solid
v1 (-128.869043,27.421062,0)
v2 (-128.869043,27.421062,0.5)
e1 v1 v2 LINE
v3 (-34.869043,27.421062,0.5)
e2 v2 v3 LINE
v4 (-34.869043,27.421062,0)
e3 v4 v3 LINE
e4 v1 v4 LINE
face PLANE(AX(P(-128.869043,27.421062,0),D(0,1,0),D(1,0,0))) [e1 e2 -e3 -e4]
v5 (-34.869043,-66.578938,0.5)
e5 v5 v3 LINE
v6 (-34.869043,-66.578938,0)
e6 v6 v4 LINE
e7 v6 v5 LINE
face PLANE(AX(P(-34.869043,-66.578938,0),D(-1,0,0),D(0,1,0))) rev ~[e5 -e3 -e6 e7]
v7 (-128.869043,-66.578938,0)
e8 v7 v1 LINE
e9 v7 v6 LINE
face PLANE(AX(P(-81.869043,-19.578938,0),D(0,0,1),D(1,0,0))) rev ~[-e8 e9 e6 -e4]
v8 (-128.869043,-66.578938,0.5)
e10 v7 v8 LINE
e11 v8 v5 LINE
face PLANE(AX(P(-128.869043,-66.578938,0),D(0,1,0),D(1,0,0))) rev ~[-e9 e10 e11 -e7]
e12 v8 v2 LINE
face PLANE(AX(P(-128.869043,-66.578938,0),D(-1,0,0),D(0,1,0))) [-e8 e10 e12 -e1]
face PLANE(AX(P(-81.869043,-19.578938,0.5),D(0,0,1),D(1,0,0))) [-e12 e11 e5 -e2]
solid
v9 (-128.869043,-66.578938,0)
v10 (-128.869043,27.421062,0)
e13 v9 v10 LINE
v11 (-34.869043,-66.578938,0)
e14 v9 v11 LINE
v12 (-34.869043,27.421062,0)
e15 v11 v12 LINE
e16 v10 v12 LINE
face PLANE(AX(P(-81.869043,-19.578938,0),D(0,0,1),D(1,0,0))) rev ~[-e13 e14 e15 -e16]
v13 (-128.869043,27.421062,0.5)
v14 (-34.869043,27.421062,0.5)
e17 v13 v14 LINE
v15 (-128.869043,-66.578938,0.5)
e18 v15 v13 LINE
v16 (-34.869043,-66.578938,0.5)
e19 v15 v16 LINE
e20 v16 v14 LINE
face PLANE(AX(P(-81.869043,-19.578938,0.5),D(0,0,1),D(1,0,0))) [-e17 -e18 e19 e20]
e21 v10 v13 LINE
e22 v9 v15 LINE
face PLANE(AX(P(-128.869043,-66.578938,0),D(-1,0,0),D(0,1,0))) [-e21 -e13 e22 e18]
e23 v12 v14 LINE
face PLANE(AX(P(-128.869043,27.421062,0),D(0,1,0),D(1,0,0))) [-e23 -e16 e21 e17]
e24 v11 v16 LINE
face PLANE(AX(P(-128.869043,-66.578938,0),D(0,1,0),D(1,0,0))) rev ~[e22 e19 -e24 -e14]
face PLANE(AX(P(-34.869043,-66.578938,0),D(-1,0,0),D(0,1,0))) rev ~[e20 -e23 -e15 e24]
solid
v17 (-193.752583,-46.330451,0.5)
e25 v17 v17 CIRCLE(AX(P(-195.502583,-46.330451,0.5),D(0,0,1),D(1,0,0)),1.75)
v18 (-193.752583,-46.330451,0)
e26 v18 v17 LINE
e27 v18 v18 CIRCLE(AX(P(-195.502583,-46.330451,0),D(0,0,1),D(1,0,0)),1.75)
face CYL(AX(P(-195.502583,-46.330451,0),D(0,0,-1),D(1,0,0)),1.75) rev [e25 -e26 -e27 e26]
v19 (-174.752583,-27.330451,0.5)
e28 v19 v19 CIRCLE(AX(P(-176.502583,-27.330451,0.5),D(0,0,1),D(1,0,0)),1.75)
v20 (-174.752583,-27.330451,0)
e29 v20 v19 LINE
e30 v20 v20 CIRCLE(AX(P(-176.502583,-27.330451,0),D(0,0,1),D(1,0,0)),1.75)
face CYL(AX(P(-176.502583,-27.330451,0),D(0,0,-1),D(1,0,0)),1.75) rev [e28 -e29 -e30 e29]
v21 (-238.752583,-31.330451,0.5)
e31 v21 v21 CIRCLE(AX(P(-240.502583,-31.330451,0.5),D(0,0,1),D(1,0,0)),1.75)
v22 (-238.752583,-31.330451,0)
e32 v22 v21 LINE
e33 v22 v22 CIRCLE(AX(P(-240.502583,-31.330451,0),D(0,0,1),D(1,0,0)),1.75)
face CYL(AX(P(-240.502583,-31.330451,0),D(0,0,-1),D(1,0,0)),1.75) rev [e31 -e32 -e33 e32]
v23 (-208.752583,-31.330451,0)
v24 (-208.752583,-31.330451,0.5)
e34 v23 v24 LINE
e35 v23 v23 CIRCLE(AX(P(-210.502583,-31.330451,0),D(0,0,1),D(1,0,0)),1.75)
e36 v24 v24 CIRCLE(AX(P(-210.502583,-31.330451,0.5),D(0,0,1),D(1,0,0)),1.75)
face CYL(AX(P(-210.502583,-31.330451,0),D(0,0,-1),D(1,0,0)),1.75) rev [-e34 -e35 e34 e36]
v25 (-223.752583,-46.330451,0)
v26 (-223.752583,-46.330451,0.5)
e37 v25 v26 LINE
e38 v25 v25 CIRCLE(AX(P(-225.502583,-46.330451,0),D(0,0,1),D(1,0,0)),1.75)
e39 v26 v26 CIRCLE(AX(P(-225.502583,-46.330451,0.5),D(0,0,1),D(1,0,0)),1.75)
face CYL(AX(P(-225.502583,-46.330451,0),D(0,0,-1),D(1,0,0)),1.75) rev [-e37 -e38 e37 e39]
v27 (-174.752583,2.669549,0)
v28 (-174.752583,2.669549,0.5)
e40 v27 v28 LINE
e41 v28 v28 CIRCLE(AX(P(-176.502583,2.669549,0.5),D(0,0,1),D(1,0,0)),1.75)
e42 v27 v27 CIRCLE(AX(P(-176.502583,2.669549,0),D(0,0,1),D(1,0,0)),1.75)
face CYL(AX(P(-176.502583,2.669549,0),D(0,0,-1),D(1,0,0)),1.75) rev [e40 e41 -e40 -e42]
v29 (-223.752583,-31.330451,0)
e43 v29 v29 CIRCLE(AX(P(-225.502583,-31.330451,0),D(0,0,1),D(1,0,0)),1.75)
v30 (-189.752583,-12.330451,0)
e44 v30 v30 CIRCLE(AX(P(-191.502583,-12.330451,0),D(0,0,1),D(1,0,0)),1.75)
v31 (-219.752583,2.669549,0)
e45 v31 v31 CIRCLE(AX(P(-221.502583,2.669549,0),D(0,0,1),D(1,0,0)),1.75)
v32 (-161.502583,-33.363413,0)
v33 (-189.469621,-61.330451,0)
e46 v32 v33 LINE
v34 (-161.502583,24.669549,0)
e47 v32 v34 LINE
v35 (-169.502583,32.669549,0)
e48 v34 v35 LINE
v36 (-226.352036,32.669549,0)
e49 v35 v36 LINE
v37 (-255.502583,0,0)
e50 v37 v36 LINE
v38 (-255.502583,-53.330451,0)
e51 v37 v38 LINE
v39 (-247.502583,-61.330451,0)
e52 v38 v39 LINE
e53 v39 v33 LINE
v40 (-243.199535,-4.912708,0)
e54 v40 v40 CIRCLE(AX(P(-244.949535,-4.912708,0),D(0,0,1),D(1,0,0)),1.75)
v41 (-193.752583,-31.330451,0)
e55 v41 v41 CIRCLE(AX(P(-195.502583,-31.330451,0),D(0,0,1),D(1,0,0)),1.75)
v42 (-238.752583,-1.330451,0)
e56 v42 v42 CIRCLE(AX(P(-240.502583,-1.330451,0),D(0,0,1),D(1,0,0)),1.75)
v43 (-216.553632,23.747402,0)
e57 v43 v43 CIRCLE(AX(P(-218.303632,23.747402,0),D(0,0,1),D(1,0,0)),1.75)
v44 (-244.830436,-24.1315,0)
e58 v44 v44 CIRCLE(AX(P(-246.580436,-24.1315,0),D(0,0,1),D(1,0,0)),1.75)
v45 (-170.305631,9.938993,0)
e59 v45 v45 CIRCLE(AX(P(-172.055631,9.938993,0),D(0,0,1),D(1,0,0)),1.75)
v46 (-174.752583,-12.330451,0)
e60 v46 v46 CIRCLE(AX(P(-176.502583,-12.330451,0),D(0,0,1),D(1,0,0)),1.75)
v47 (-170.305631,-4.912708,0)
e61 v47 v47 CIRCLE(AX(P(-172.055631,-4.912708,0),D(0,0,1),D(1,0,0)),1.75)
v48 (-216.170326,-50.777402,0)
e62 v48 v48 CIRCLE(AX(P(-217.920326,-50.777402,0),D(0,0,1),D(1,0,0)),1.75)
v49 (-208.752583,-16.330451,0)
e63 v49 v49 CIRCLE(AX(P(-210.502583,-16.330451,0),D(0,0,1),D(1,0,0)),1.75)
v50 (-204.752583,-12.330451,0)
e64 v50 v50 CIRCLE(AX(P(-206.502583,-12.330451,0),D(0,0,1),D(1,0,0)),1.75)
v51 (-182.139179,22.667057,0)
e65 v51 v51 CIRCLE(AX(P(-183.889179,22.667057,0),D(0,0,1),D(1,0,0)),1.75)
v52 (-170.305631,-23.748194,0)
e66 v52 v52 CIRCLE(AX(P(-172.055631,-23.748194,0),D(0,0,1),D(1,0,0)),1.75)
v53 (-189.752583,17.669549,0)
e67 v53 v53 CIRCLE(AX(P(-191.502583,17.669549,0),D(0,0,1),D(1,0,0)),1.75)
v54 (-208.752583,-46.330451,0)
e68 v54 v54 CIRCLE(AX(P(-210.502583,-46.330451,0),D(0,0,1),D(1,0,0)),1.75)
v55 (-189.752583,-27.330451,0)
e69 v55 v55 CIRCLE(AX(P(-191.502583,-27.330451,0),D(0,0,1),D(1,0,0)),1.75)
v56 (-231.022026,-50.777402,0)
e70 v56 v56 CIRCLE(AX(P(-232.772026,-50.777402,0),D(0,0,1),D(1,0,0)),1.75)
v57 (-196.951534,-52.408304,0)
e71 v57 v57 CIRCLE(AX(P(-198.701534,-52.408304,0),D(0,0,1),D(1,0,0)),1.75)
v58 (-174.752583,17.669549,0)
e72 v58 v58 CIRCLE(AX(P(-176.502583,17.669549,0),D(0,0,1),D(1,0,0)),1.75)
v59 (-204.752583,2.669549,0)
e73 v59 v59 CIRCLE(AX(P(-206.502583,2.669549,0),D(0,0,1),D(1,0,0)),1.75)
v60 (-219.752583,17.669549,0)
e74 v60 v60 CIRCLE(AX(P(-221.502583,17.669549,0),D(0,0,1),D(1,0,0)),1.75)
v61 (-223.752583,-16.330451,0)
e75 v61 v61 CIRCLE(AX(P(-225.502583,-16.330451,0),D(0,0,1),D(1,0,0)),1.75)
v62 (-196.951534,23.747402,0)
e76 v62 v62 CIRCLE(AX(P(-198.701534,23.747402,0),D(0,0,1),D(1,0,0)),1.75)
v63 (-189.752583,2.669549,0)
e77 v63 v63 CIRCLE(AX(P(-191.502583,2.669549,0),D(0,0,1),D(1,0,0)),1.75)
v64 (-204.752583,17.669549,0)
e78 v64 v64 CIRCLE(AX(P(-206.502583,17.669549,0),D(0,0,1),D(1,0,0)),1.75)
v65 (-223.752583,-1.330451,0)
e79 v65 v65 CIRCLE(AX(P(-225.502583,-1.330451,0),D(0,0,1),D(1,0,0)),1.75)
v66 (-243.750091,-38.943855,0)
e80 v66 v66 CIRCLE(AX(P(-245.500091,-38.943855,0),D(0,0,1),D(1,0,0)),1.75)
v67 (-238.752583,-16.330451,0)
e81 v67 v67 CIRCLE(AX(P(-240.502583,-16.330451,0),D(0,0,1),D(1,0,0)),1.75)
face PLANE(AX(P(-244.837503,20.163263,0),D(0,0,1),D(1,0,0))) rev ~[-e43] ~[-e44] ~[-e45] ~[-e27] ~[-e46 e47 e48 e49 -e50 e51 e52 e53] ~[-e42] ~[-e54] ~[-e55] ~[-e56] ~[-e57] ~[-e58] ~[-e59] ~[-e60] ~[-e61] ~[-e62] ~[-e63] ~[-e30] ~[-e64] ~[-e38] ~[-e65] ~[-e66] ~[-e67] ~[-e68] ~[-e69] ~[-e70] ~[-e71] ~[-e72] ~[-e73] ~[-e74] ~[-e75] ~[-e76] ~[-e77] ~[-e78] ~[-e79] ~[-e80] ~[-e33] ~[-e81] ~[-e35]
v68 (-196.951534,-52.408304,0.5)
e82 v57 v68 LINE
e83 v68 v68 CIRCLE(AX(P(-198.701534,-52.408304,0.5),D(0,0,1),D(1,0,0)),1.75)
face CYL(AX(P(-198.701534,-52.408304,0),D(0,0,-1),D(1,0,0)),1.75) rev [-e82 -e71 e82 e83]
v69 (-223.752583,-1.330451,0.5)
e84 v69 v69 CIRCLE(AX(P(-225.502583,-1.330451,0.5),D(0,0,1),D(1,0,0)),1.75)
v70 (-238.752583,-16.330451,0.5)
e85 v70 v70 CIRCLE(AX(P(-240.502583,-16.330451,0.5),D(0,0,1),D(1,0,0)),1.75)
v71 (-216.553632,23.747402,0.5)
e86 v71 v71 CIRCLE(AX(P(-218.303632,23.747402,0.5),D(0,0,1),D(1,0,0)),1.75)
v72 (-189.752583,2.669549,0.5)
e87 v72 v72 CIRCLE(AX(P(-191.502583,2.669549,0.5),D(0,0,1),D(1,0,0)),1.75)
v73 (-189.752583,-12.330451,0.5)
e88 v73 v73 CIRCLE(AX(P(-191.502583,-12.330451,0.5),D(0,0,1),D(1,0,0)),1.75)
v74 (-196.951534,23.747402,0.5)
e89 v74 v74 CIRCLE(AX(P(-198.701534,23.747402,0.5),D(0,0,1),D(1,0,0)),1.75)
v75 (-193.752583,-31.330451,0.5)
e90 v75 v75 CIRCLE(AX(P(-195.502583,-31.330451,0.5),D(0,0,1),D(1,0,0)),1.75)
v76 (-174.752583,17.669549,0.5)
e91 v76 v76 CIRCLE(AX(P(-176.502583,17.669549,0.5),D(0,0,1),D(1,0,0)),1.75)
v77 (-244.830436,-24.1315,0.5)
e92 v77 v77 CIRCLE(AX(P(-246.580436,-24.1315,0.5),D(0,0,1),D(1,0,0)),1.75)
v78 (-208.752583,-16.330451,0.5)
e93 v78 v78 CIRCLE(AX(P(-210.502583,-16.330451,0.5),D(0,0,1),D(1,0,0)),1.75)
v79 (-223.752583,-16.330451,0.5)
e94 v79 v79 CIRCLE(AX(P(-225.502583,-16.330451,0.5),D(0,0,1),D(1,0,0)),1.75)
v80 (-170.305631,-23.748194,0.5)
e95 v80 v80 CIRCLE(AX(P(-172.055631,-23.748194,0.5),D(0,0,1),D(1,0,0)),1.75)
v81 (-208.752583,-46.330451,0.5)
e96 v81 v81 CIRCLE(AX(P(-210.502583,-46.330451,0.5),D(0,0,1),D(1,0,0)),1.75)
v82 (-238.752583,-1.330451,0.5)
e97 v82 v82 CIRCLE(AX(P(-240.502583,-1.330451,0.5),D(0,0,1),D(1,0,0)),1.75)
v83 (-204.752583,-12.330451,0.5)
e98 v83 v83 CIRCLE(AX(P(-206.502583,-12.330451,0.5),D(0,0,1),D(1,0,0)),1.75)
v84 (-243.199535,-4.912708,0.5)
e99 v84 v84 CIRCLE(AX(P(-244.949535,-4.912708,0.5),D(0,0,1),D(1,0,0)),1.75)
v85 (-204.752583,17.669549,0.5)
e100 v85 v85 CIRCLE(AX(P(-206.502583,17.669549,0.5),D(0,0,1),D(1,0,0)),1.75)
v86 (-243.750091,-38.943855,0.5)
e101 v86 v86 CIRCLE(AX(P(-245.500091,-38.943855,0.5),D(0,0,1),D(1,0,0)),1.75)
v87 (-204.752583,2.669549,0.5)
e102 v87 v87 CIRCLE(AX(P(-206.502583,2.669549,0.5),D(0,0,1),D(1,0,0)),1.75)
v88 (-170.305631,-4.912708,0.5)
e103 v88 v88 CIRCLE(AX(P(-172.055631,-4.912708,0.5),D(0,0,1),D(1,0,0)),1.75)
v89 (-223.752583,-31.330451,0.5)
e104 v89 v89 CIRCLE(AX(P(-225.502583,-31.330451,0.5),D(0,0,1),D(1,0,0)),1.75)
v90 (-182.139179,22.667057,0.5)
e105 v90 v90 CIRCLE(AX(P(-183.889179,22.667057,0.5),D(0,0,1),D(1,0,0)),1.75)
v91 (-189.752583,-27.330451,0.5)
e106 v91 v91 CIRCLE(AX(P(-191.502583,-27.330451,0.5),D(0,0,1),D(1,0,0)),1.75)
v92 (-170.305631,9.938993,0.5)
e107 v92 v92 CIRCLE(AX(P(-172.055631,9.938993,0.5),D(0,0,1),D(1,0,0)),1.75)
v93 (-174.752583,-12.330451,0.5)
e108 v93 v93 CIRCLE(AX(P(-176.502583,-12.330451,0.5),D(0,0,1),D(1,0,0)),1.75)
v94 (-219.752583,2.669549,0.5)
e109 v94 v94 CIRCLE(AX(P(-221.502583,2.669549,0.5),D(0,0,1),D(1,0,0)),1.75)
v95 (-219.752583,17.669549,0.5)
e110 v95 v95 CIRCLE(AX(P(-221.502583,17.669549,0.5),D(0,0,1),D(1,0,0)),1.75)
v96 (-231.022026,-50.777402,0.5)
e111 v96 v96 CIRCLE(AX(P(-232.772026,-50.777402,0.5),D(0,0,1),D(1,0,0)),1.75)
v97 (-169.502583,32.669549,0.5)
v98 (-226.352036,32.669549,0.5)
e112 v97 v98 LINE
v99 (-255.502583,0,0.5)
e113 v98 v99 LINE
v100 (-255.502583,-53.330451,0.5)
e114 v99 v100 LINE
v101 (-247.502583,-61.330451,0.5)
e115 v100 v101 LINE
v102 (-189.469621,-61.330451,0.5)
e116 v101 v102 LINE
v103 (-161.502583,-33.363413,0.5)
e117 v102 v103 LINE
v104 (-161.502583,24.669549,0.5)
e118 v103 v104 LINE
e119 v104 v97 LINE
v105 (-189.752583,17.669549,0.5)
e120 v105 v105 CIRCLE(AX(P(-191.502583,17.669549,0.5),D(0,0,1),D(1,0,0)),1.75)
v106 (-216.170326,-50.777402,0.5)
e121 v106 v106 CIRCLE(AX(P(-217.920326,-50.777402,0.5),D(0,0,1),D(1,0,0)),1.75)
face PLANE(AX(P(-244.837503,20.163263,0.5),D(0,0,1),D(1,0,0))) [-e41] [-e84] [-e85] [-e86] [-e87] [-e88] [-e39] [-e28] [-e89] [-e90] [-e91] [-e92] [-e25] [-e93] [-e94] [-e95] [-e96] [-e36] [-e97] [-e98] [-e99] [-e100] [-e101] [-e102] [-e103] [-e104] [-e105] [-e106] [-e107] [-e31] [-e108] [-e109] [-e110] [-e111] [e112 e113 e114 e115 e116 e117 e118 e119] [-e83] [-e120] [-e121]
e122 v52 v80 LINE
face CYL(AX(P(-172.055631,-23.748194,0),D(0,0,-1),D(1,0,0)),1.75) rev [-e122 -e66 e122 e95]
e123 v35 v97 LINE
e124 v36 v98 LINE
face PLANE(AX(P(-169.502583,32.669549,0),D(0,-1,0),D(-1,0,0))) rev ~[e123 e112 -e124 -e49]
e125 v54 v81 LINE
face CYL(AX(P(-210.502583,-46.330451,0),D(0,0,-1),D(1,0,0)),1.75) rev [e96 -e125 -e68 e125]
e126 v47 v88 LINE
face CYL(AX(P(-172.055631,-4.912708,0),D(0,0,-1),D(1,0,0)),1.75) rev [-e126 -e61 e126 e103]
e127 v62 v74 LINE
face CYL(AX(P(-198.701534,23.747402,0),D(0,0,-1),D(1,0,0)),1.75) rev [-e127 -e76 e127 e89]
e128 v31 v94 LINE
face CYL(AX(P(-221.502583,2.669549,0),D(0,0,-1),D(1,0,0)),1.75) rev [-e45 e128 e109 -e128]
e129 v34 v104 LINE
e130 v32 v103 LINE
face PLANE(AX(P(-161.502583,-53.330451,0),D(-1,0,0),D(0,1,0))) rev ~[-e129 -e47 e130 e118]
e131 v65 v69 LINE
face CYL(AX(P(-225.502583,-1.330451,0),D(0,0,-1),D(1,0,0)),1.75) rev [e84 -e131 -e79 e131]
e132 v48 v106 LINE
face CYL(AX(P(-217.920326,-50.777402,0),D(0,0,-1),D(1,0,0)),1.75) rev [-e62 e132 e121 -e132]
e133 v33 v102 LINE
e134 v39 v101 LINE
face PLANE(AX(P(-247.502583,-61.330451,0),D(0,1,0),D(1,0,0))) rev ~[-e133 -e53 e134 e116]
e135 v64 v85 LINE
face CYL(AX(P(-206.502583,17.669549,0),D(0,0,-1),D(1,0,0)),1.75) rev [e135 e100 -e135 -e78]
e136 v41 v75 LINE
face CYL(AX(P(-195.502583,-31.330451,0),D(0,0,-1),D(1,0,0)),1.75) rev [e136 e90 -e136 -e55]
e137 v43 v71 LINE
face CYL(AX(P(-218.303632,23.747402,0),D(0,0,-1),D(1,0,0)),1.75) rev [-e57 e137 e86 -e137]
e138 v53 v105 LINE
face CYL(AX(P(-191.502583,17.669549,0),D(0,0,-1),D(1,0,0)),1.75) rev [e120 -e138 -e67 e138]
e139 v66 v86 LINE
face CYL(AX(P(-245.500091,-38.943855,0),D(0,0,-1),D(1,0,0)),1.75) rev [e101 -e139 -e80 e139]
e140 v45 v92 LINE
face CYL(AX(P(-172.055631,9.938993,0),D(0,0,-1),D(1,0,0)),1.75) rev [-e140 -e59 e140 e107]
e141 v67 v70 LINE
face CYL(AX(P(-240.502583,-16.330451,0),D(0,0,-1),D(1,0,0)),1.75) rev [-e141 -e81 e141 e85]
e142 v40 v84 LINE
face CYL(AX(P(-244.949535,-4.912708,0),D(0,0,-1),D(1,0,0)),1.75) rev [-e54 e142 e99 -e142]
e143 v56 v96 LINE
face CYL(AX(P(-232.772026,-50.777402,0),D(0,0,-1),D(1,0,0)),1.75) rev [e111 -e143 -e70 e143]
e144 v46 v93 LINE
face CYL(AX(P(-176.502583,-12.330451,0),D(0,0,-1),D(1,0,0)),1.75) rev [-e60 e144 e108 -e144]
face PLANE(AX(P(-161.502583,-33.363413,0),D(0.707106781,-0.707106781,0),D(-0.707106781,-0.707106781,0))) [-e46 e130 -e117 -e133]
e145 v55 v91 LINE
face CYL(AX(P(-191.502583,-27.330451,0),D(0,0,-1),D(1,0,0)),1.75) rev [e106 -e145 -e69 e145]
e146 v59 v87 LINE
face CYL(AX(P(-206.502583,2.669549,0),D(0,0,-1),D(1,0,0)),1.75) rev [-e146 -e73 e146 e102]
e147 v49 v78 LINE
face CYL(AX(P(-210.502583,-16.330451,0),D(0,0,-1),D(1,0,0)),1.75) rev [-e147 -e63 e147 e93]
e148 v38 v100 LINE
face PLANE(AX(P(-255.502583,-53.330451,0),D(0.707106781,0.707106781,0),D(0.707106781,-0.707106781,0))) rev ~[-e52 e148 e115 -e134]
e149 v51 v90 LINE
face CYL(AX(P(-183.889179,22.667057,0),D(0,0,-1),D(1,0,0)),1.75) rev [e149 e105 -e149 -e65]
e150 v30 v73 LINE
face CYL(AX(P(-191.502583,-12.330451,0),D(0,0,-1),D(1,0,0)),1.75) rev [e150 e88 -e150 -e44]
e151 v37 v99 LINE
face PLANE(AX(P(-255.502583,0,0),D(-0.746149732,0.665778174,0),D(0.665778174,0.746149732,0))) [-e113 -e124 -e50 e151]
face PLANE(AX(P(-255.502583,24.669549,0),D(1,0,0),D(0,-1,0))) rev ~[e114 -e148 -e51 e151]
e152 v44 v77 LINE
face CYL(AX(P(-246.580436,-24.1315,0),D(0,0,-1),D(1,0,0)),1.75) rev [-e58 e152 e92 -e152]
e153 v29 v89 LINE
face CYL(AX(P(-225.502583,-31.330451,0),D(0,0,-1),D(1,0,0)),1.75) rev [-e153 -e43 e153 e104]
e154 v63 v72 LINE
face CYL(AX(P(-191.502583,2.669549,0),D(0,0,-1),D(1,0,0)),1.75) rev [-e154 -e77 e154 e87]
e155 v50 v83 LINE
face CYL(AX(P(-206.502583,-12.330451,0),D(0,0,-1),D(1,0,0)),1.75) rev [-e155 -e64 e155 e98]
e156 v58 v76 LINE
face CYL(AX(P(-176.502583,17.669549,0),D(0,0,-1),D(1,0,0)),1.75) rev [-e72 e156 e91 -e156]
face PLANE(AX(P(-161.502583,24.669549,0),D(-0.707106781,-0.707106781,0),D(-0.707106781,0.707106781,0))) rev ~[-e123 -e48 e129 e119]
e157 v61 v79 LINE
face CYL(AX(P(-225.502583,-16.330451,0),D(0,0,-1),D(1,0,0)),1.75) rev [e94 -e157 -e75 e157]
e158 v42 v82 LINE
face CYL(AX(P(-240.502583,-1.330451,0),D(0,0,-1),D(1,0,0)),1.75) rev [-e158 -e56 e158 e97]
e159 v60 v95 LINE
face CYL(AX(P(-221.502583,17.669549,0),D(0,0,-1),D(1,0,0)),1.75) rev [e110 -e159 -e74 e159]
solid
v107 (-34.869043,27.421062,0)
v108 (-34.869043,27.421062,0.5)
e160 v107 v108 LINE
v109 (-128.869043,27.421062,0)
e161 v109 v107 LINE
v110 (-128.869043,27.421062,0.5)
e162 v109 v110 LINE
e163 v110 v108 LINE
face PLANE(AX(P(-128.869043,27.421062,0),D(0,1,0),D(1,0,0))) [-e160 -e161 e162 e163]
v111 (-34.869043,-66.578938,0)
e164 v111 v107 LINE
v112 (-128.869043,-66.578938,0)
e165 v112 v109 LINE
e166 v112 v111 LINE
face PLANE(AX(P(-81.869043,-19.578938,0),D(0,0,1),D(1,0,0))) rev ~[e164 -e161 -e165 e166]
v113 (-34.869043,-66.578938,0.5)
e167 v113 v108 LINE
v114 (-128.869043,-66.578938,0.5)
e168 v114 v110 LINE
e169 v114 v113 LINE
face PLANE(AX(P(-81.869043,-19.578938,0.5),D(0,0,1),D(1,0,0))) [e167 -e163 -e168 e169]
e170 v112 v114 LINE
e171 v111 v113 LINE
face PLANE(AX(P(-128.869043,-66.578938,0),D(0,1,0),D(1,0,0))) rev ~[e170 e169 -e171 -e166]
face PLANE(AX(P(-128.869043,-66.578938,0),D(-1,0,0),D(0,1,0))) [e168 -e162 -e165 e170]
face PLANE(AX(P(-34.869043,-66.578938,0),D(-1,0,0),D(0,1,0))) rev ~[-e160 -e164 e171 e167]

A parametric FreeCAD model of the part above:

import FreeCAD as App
import Part
import Sketcher
from FreeCAD import Vector
Q = App.Units.Quantity

doc = App.newDocument("Part")
params = doc.addObject("Spreadsheet::Sheet", "Params")
for row, (alias, value) in enumerate([
    ("sketch1_width", "94 mm"),
    ("pad1_length", "0.5 mm"),
    ("sketch2_diameter", "3.5 mm"),
    ("sketch2_width", "78 mm"),
    ("pad2_length", "0.5 mm"),
    ("pocket1_length", "25 mm"),
    ("sketch4_width", "94 mm"),
    ("pad3_length", "0.5 mm"),
    ("sketch5_width", "94 mm"),
    ("pad4_length", "0.5 mm"),
], start=1):
    params.set(f"A{row}", alias)
    params.set(f"B{row}", "=" + value)
    params.setAlias(f"B{row}", alias)

body = doc.addObject("PartDesign::Body", "Body")

sketch1 = doc.addObject("Sketcher::SketchObject", "Sketch")
body.addObject(sketch1)
sketch1.AttachmentSupport = (doc.XY_Plane, [""])
sketch1.MapMode = "FlatFace"
sketch1.addGeometry(Part.LineSegment(Vector(-129, 27, 0), Vector(-129, -67, 0)), False)
sketch1.addGeometry(Part.LineSegment(Vector(-129, -67, 0), Vector(-35, -67, 0)), False)
sketch1.addGeometry(Part.LineSegment(Vector(-35, -67, 0), Vector(-35, 27, 0)), False)
sketch1.addGeometry(Part.LineSegment(Vector(-35, 27, 0), Vector(-129, 27, 0)), False)
sketch1.addConstraint(Sketcher.Constraint("Coincident", 0, 2, 1, 1))
sketch1.addConstraint(Sketcher.Constraint("Coincident", 1, 2, 2, 1))
sketch1.addConstraint(Sketcher.Constraint("Coincident", 2, 2, 3, 1))
sketch1.addConstraint(Sketcher.Constraint("Coincident", 3, 2, 0, 1))
sketch1.addConstraint(Sketcher.Constraint("Vertical", 0))
sketch1.addConstraint(Sketcher.Constraint("Horizontal", 1))
sketch1.addConstraint(Sketcher.Constraint("Vertical", 2))
sketch1.addConstraint(Sketcher.Constraint("Horizontal", 3))
sketch1.addConstraint(Sketcher.Constraint("Equal", 3, 0))
sketch1.addConstraint(Sketcher.Constraint("DistanceX", 1, 1, 1, 2, Q("94 mm")))
sketch1.addConstraint(Sketcher.Constraint("DistanceY", 0, 2, -1, 1, Q("66.578938 mm")))
sketch1.addConstraint(Sketcher.Constraint("DistanceX", 0, 2, -1, 1, Q("128.869043 mm")))
sketch1.setExpression("Constraints[9]", "Params.sketch1_width")
pad1 = doc.addObject("PartDesign::Pad", "Pad")
body.addObject(pad1)
pad1.Profile = sketch1
pad1.setExpression("Length", "Params.pad1_length")
body2 = doc.addObject("PartDesign::Body", "Body001")

sketch2 = doc.addObject("Sketcher::SketchObject", "Sketch001")
body2.addObject(sketch2)
sketch2.AttachmentSupport = (doc.getObject("XY_Plane001"), [""])
sketch2.MapMode = "FlatFace"
sketch2.addGeometry(Part.LineSegment(Vector(-247.5, 32.7, 0), Vector(-255.5, 24.7, 0)), False)
sketch2.addGeometry(Part.LineSegment(Vector(-255.5, 24.7, 0), Vector(-255.5, -53.3, 0)), False)
sketch2.addGeometry(Part.LineSegment(Vector(-255.5, -53.3, 0), Vector(-247.5, -61.3, 0)), False)
sketch2.addGeometry(Part.LineSegment(Vector(-247.5, -61.3, 0), Vector(-169.5, -61.3, 0)), False)
sketch2.addGeometry(Part.LineSegment(Vector(-169.5, -61.3, 0), Vector(-161.5, -53.3, 0)), False)
sketch2.addGeometry(Part.LineSegment(Vector(-161.5, -53.3, 0), Vector(-161.5, 24.7, 0)), False)
sketch2.addGeometry(Part.LineSegment(Vector(-161.5, 24.7, 0), Vector(-169.5, 32.7, 0)), False)
sketch2.addGeometry(Part.LineSegment(Vector(-169.5, 32.7, 0), Vector(-247.5, 32.7, 0)), False)
sketch2.addGeometry(Part.Circle(Vector(-232.8, -50.8, 0), Vector(0, 0, 1), 1.8), False)
sketch2.addGeometry(Part.Circle(Vector(-245.5, -38.9, 0), Vector(0, 0, 1), 1.8), False)
sketch2.addGeometry(Part.Circle(Vector(-225.5, -46.3, 0), Vector(0, 0, 1), 1.8), False)
sketch2.addGeometry(Part.Circle(Vector(-217.9, -50.8, 0), Vector(0, 0, 1), 1.8), False)
sketch2.addGeometry(Part.Circle(Vector(-210.5, -46.3, 0), Vector(0, 0, 1), 1.8), False)
sketch2.addGeometry(Part.Circle(Vector(-240.5, -31.3, 0), Vector(0, 0, 1), 1.8), False)
sketch2.addGeometry(Part.Circle(Vector(-246.6, -24.1, 0), Vector(0, 0, 1), 1.8), False)
sketch2.addGeometry(Part.Circle(Vector(-240.5, -16.3, 0), Vector(0, 0, 1), 1.8), False)
sketch2.addGeometry(Part.Circle(Vector(-225.5, -31.3, 0), Vector(0, 0, 1), 1.8), False)
sketch2.addGeometry(Part.Circle(Vector(-210.5, -31.3, 0), Vector(0, 0, 1), 1.8), False)
sketch2.addGeometry(Part.Circle(Vector(-225.5, -16.3, 0), Vector(0, 0, 1), 1.8), False)
sketch2.addGeometry(Part.Circle(Vector(-210.5, -16.3, 0), Vector(0, 0, 1), 1.8), False)
sketch2.addGeometry(Part.Circle(Vector(-198.7, -52.4, 0), Vector(0, 0, 1), 1.8), False)
sketch2.addGeometry(Part.Circle(Vector(-195.5, -46.3, 0), Vector(0, 0, 1), 1.8), False)
sketch2.addGeometry(Part.Circle(Vector(-195.5, -31.3, 0), Vector(0, 0, 1), 1.8), False)
sketch2.addGeometry(Part.Circle(Vector(-191.5, -27.3, 0), Vector(0, 0, 1), 1.8), False)
sketch2.addGeometry(Part.Circle(Vector(-176.5, -27.3, 0), Vector(0, 0, 1), 1.8), False)
sketch2.addGeometry(Part.Circle(Vector(-172.1, -23.7, 0), Vector(0, 0, 1), 1.8), False)
sketch2.addGeometry(Part.Circle(Vector(-244.9, -4.9, 0), Vector(0, 0, 1), 1.8), False)
sketch2.addGeometry(Part.Circle(Vector(-240.5, -1.3, 0), Vector(0, 0, 1), 1.8), False)
sketch2.addGeometry(Part.Circle(Vector(-225.5, -1.3, 0), Vector(0, 0, 1), 1.8), False)
sketch2.addGeometry(Part.Circle(Vector(-221.5, 2.7, 0), Vector(0, 0, 1), 1.8), False)
sketch2.addGeometry(Part.Circle(Vector(-221.5, 17.7, 0), Vector(0, 0, 1), 1.8), False)
sketch2.addGeometry(Part.Circle(Vector(-218.3, 23.7, 0), Vector(0, 0, 1), 1.8), False)
sketch2.addGeometry(Part.Circle(Vector(-206.5, -12.3, 0), Vector(0, 0, 1), 1.8), False)
sketch2.addGeometry(Part.Circle(Vector(-191.5, -12.3, 0), Vector(0, 0, 1), 1.8), False)
sketch2.addGeometry(Part.Circle(Vector(-206.5, 2.7, 0), Vector(0, 0, 1), 1.8), False)
sketch2.addGeometry(Part.Circle(Vector(-191.5, 2.7, 0), Vector(0, 0, 1), 1.8), False)
sketch2.addGeometry(Part.Circle(Vector(-176.5, -12.3, 0), Vector(0, 0, 1), 1.8), False)
sketch2.addGeometry(Part.Circle(Vector(-172.1, -4.9, 0), Vector(0, 0, 1), 1.8), False)
sketch2.addGeometry(Part.Circle(Vector(-176.5, 2.7, 0), Vector(0, 0, 1), 1.8), False)
sketch2.addGeometry(Part.Circle(Vector(-206.5, 17.7, 0), Vector(0, 0, 1), 1.8), False)
sketch2.addGeometry(Part.Circle(Vector(-191.5, 17.7, 0), Vector(0, 0, 1), 1.8), False)
sketch2.addGeometry(Part.Circle(Vector(-198.7, 23.7, 0), Vector(0, 0, 1), 1.8), False)
sketch2.addGeometry(Part.Circle(Vector(-172.1, 9.9, 0), Vector(0, 0, 1), 1.8), False)
sketch2.addGeometry(Part.Circle(Vector(-183.9, 22.7, 0), Vector(0, 0, 1), 1.8), False)
sketch2.addGeometry(Part.Circle(Vector(-176.5, 17.7, 0), Vector(0, 0, 1), 1.8), False)
sketch2.addConstraint(Sketcher.Constraint("Coincident", 0, 2, 1, 1))
sketch2.addConstraint(Sketcher.Constraint("Coincident", 1, 2, 2, 1))
sketch2.addConstraint(Sketcher.Constraint("Coincident", 2, 2, 3, 1))
sketch2.addConstraint(Sketcher.Constraint("Coincident", 3, 2, 4, 1))
sketch2.addConstraint(Sketcher.Constraint("Coincident", 4, 2, 5, 1))
sketch2.addConstraint(Sketcher.Constraint("Coincident", 5, 2, 6, 1))
sketch2.addConstraint(Sketcher.Constraint("Coincident", 6, 2, 7, 1))
sketch2.addConstraint(Sketcher.Constraint("Coincident", 7, 2, 0, 1))
sketch2.addConstraint(Sketcher.Constraint("Vertical", 1))
sketch2.addConstraint(Sketcher.Constraint("Horizontal", 3))
sketch2.addConstraint(Sketcher.Constraint("Vertical", 5))
sketch2.addConstraint(Sketcher.Constraint("Horizontal", 7))
sketch2.addConstraint(Sketcher.Constraint("Equal", 8, 9))
sketch2.addConstraint(Sketcher.Constraint("Equal", 9, 10))
sketch2.addConstraint(Sketcher.Constraint("Equal", 10, 11))
sketch2.addConstraint(Sketcher.Constraint("Equal", 11, 12))
sketch2.addConstraint(Sketcher.Constraint("Equal", 12, 13))
sketch2.addConstraint(Sketcher.Constraint("Equal", 13, 14))
sketch2.addConstraint(Sketcher.Constraint("Equal", 14, 15))
sketch2.addConstraint(Sketcher.Constraint("Equal", 15, 16))
sketch2.addConstraint(Sketcher.Constraint("Equal", 16, 17))
sketch2.addConstraint(Sketcher.Constraint("Equal", 17, 18))
sketch2.addConstraint(Sketcher.Constraint("Equal", 18, 19))
sketch2.addConstraint(Sketcher.Constraint("Equal", 19, 20))
sketch2.addConstraint(Sketcher.Constraint("Equal", 20, 21))
sketch2.addConstraint(Sketcher.Constraint("Equal", 21, 22))
sketch2.addConstraint(Sketcher.Constraint("Equal", 22, 23))
sketch2.addConstraint(Sketcher.Constraint("Equal", 23, 24))
sketch2.addConstraint(Sketcher.Constraint("Equal", 24, 25))
sketch2.addConstraint(Sketcher.Constraint("Equal", 25, 26))
sketch2.addConstraint(Sketcher.Constraint("Equal", 26, 27))
sketch2.addConstraint(Sketcher.Constraint("Equal", 27, 28))
sketch2.addConstraint(Sketcher.Constraint("Equal", 28, 29))
sketch2.addConstraint(Sketcher.Constraint("Equal", 29, 30))
sketch2.addConstraint(Sketcher.Constraint("Equal", 30, 31))
sketch2.addConstraint(Sketcher.Constraint("Equal", 31, 32))
sketch2.addConstraint(Sketcher.Constraint("Equal", 32, 33))
sketch2.addConstraint(Sketcher.Constraint("Equal", 33, 34))
sketch2.addConstraint(Sketcher.Constraint("Equal", 34, 35))
sketch2.addConstraint(Sketcher.Constraint("Equal", 35, 36))
sketch2.addConstraint(Sketcher.Constraint("Equal", 36, 37))
sketch2.addConstraint(Sketcher.Constraint("Equal", 37, 38))
sketch2.addConstraint(Sketcher.Constraint("Equal", 38, 39))
sketch2.addConstraint(Sketcher.Constraint("Equal", 39, 40))
sketch2.addConstraint(Sketcher.Constraint("Equal", 40, 41))
sketch2.addConstraint(Sketcher.Constraint("Equal", 41, 42))
sketch2.addConstraint(Sketcher.Constraint("Equal", 42, 43))
sketch2.addConstraint(Sketcher.Constraint("Equal", 43, 44))
sketch2.addConstraint(Sketcher.Constraint("Perpendicular", 0, 2))
sketch2.addConstraint(Sketcher.Constraint("Perpendicular", 2, 4))
sketch2.addConstraint(Sketcher.Constraint("Perpendicular", 4, 6))
sketch2.addConstraint(Sketcher.Constraint("Horizontal", 8, 3, 11, 3))
sketch2.addConstraint(Sketcher.Constraint("Horizontal", 10, 3, 12, 3))
sketch2.addConstraint(Sketcher.Constraint("Horizontal", 13, 3, 16, 3))
sketch2.addConstraint(Sketcher.Constraint("Horizontal", 16, 3, 17, 3))
sketch2.addConstraint(Sketcher.Constraint("Horizontal", 15, 3, 18, 3))
sketch2.addConstraint(Sketcher.Constraint("Horizontal", 18, 3, 19, 3))
sketch2.addConstraint(Sketcher.Constraint("Horizontal", 12, 3, 21, 3))
sketch2.addConstraint(Sketcher.Constraint("Horizontal", 17, 3, 22, 3))
sketch2.addConstraint(Sketcher.Constraint("Horizontal", 23, 3, 24, 3))
sketch2.addConstraint(Sketcher.Constraint("Horizontal", 27, 3, 28, 3))
sketch2.addConstraint(Sketcher.Constraint("Horizontal", 32, 3, 33, 3))
sketch2.addConstraint(Sketcher.Constraint("Horizontal", 29, 3, 34, 3))
sketch2.addConstraint(Sketcher.Constraint("Horizontal", 34, 3, 35, 3))
sketch2.addConstraint(Sketcher.Constraint("Horizontal", 33, 3, 36, 3))
sketch2.addConstraint(Sketcher.Constraint("Horizontal", 26, 3, 37, 3))
sketch2.addConstraint(Sketcher.Constraint("Horizontal", 35, 3, 38, 3))
sketch2.addConstraint(Sketcher.Constraint("Horizontal", 30, 3, 39, 3))
sketch2.addConstraint(Sketcher.Constraint("Horizontal", 39, 3, 40, 3))
sketch2.addConstraint(Sketcher.Constraint("Horizontal", 31, 3, 41, 3))
sketch2.addConstraint(Sketcher.Constraint("Horizontal", 40, 3, 44, 3))
sketch2.addConstraint(Sketcher.Constraint("Horizontal", 1, 2, 4, 2))
sketch2.addConstraint(Sketcher.Constraint("Horizontal", 0, 2, 5, 2))
sketch2.addConstraint(Sketcher.Constraint("Vertical", 13, 3, 15, 3))
sketch2.addConstraint(Sketcher.Constraint("Vertical", 10, 3, 16, 3))
sketch2.addConstraint(Sketcher.Constraint("Vertical", 12, 3, 17, 3))
sketch2.addConstraint(Sketcher.Constraint("Vertical", 16, 3, 18, 3))
sketch2.addConstraint(Sketcher.Constraint("Vertical", 17, 3, 19, 3))
sketch2.addConstraint(Sketcher.Constraint("Vertical", 21, 3, 22, 3))
sketch2.addConstraint(Sketcher.Constraint("Vertical", 15, 3, 27, 3))
sketch2.addConstraint(Sketcher.Constraint("Vertical", 18, 3, 28, 3))
sketch2.addConstraint(Sketcher.Constraint("Vertical", 29, 3, 30, 3))
sketch2.addConstraint(Sketcher.Constraint("Vertical", 23, 3, 33, 3))
sketch2.addConstraint(Sketcher.Constraint("Vertical", 32, 3, 34, 3))
sketch2.addConstraint(Sketcher.Constraint("Vertical", 33, 3, 35, 3))
sketch2.addConstraint(Sketcher.Constraint("Vertical", 24, 3, 36, 3))
sketch2.addConstraint(Sketcher.Constraint("Vertical", 25, 3, 37, 3))
sketch2.addConstraint(Sketcher.Constraint("Vertical", 36, 3, 38, 3))
sketch2.addConstraint(Sketcher.Constraint("Vertical", 34, 3, 39, 3))
sketch2.addConstraint(Sketcher.Constraint("Vertical", 35, 3, 40, 3))
sketch2.addConstraint(Sketcher.Constraint("Vertical", 20, 3, 41, 3))
sketch2.addConstraint(Sketcher.Constraint("Vertical", 37, 3, 42, 3))
sketch2.addConstraint(Sketcher.Constraint("Vertical", 38, 3, 44, 3))
sketch2.addConstraint(Sketcher.Constraint("Vertical", 3, 2, 6, 2))
sketch2.addConstraint(Sketcher.Constraint("Vertical", 2, 2, 7, 2))
sketch2.addConstraint(Sketcher.Constraint("Equal", 7, 1))
sketch2.addConstraint(Sketcher.Constraint("Diameter", 8, Q("3.5 mm")))
sketch2.addConstraint(Sketcher.Constraint("DistanceX", 3, 1, 3, 2, Q("78 mm")))
sketch2.addConstraint(Sketcher.Constraint("DistanceX", 10, 3, 12, 3, Q("15 mm")))
sketch2.addConstraint(Sketcher.Constraint("DistanceX", 13, 3, 10, 3, Q("15 mm")))
sketch2.addConstraint(Sketcher.Constraint("DistanceY", 10, 3, 13, 3, Q("15 mm")))
sketch2.addConstraint(Sketcher.Constraint("DistanceY", 13, 3, 15, 3, Q("15 mm")))
sketch2.addConstraint(Sketcher.Constraint("DistanceX", 12, 3, 21, 3, Q("15 mm")))
sketch2.addConstraint(Sketcher.Constraint("DistanceX", 22, 3, 23, 3, Q("4 mm")))
sketch2.addConstraint(Sketcher.Constraint("DistanceY", 22, 3, 23, 3, Q("4 mm")))
sketch2.addConstraint(Sketcher.Constraint("DistanceX", 23, 3, 24, 3, Q("15 mm")))
sketch2.addConstraint(Sketcher.Constraint("DistanceY", 15, 3, 27, 3, Q("15 mm")))
sketch2.addConstraint(Sketcher.Constraint("DistanceX", 28, 3, 29, 3, Q("4 mm")))
sketch2.addConstraint(Sketcher.Constraint("DistanceY", 28, 3, 29, 3, Q("4 mm")))
sketch2.addConstraint(Sketcher.Constraint("DistanceY", 29, 3, 30, 3, Q("15 mm")))
sketch2.addConstraint(Sketcher.Constraint("DistanceX", 19, 3, 32, 3, Q("4 mm")))
sketch2.addConstraint(Sketcher.Constraint("DistanceY", 19, 3, 32, 3, Q("4 mm")))
sketch2.addConstraint(Sketcher.Constraint("DistanceX", 0, 2, 27, 3, Q("15 mm")))
sketch2.addConstraint(Sketcher.Constraint("DistanceY", 27, 3, 0, 2, Q("26 mm")))
sketch2.addConstraint(Sketcher.Constraint("DistanceX", 1, 2, 2, 2, Q("8 mm")))
sketch2.addConstraint(Sketcher.Constraint("DistanceY", 14, 3, -1, 1, Q("24.1315 mm")))
sketch2.addConstraint(Sketcher.Constraint("DistanceX", 8, 3, 11, 3, Q("14.851701 mm")))
sketch2.addConstraint(Sketcher.Constraint("DistanceY", 20, 3, 11, 3, Q("1.630902 mm")))
sketch2.addConstraint(Sketcher.Constraint("DistanceX", 14, 3, 26, 3, Q("1.630902 mm")))
sketch2.addConstraint(Sketcher.Constraint("DistanceX", 31, 3, 41, 3, Q("19.602098 mm")))
sketch2.addConstraint(Sketcher.Constraint("DistanceY", 37, 3, 42, 3, Q("14.851701 mm")))
sketch2.addConstraint(Sketcher.Constraint("DistanceX", 9, 3, -1, 1, Q("245.500091 mm")))
sketch2.addConstraint(Sketcher.Constraint("DistanceY", 10, 3, -1, 1, Q("46.330451 mm")))
sketch2.addConstraint(Sketcher.Constraint("DistanceX", 25, 3, -1, 1, Q("172.055631 mm")))
sketch2.addConstraint(Sketcher.Constraint("DistanceY", 26, 3, -1, 1, Q("4.912708 mm")))
sketch2.addConstraint(Sketcher.Constraint("DistanceX", 43, 3, -1, 1, Q("183.889179 mm")))
sketch2.addConstraint(Sketcher.Constraint("DistanceY", 8, 3, 10, 3, Q("4.446952 mm")))
sketch2.addConstraint(Sketcher.Constraint("DistanceX", 9, 3, 10, 3, Q("19.997508 mm")))
sketch2.addConstraint(Sketcher.Constraint("DistanceX", 14, 3, 8, 3, Q("13.80841 mm")))
sketch2.addConstraint(Sketcher.Constraint("DistanceX", 12, 3, 20, 3, Q("11.801049 mm")))
sketch2.addConstraint(Sketcher.Constraint("DistanceX", 11, 3, 20, 3, Q("19.218792 mm")))
sketch2.addConstraint(Sketcher.Constraint("DistanceY", 20, 3, 25, 3, Q("28.66011 mm")))
sketch2.addConstraint(Sketcher.Constraint("DistanceY", 26, 3, 31, 3, Q("28.66011 mm")))
sketch2.addConstraint(Sketcher.Constraint("DistanceY", 40, 3, 43, 3, Q("4.997508 mm")))
sketch2.addConstraint(Sketcher.Constraint("DistanceY", 9, 3, -1, 1, Q("38.943855 mm")))
sketch2.setExpression("Constraints[96]", "Params.sketch2_diameter")
sketch2.setExpression("Constraints[97]", "Params.sketch2_width")
pad2 = doc.addObject("PartDesign::Pad", "Pad001")
body2.addObject(pad2)
pad2.Profile = sketch2
pad2.setExpression("Length", "Params.pad2_length")

sketch3 = doc.addObject("Sketcher::SketchObject", "Sketch002")
body2.addObject(sketch3)
sketch3.AttachmentSupport = (doc.getObject("XY_Plane001"), [""])
sketch3.MapMode = "FlatFace"
sketch3.addGeometry(Part.LineSegment(Vector(-162, -33, 0), Vector(-189, -61, 0)), False)
sketch3.addGeometry(Part.LineSegment(Vector(-189, -61, 0), Vector(-170, -61, 0)), False)
sketch3.addGeometry(Part.LineSegment(Vector(-170, -61, 0), Vector(-162, -53, 0)), False)
sketch3.addGeometry(Part.LineSegment(Vector(-162, -53, 0), Vector(-162, -33, 0)), False)
sketch3.addGeometry(Part.LineSegment(Vector(-248, 33, 0), Vector(-256, 25, 0)), False)
sketch3.addGeometry(Part.LineSegment(Vector(-256, 25, 0), Vector(-256, 0, 0)), False)
sketch3.addGeometry(Part.LineSegment(Vector(-256, 0, 0), Vector(-226, 33, 0)), False)
sketch3.addGeometry(Part.LineSegment(Vector(-226, 33, 0), Vector(-248, 33, 0)), False)
sketch3.addConstraint(Sketcher.Constraint("Coincident", 0, 2, 1, 1))
sketch3.addConstraint(Sketcher.Constraint("Coincident", 1, 2, 2, 1))
sketch3.addConstraint(Sketcher.Constraint("Coincident", 2, 2, 3, 1))
sketch3.addConstraint(Sketcher.Constraint("Coincident", 3, 2, 0, 1))
sketch3.addConstraint(Sketcher.Constraint("Coincident", 4, 2, 5, 1))
sketch3.addConstraint(Sketcher.Constraint("Coincident", 5, 2, 6, 1))
sketch3.addConstraint(Sketcher.Constraint("Coincident", 6, 2, 7, 1))
sketch3.addConstraint(Sketcher.Constraint("Coincident", 7, 2, 4, 1))
sketch3.addConstraint(Sketcher.Constraint("Horizontal", 1))
sketch3.addConstraint(Sketcher.Constraint("Vertical", 3))
sketch3.addConstraint(Sketcher.Constraint("Vertical", 5))
sketch3.addConstraint(Sketcher.Constraint("Horizontal", 7))
sketch3.addConstraint(Sketcher.Constraint("PointOnObject", 5, 2, -1))
sketch3.addConstraint(Sketcher.Constraint("Parallel", 0, 2))
sketch3.addConstraint(Sketcher.Constraint("Parallel", 2, 4))
sketch3.addConstraint(Sketcher.Constraint("Equal", 1, 3))
sketch3.addConstraint(Sketcher.Constraint("Equal", 2, 4))
sketch3.addConstraint(Sketcher.Constraint("DistanceX", 1, 2, 2, 2, Q("8 mm")))
sketch3.addConstraint(Sketcher.Constraint("DistanceY", 0, 2, 4, 2, Q("86 mm")))
sketch3.addConstraint(Sketcher.Constraint("DistanceX", 4, 2, 3, 2, Q("94 mm")))
sketch3.addConstraint(Sketcher.Constraint("DistanceY", 5, 2, 5, 1, Q("24.669549 mm")))
sketch3.addConstraint(Sketcher.Constraint("DistanceX", 1, 1, 1, 2, Q("19.967038 mm")))
sketch3.addConstraint(Sketcher.Constraint("DistanceX", 7, 2, 7, 1, Q("21.150547 mm")))
sketch3.addConstraint(Sketcher.Constraint("DistanceX", 0, 2, -1, 1, Q("189.469621 mm")))
pocket1 = doc.addObject("PartDesign::Pocket", "Pocket")
body2.addObject(pocket1)
pocket1.Profile = sketch3
pocket1.setExpression("Length", "Params.pocket1_length")
pocket1.Reversed = True
body3 = doc.addObject("PartDesign::Body", "Body002")

sketch4 = doc.addObject("Sketcher::SketchObject", "Sketch003")
body3.addObject(sketch4)
sketch4.AttachmentSupport = (doc.getObject("XY_Plane002"), [""])
sketch4.MapMode = "FlatFace"
sketch4.addGeometry(Part.LineSegment(Vector(-129, 27, 0), Vector(-129, -67, 0)), False)
sketch4.addGeometry(Part.LineSegment(Vector(-129, -67, 0), Vector(-35, -67, 0)), False)
sketch4.addGeometry(Part.LineSegment(Vector(-35, -67, 0), Vector(-35, 27, 0)), False)
sketch4.addGeometry(Part.LineSegment(Vector(-35, 27, 0), Vector(-129, 27, 0)), False)
sketch4.addConstraint(Sketcher.Constraint("Coincident", 0, 2, 1, 1))
sketch4.addConstraint(Sketcher.Constraint("Coincident", 1, 2, 2, 1))
sketch4.addConstraint(Sketcher.Constraint("Coincident", 2, 2, 3, 1))
sketch4.addConstraint(Sketcher.Constraint("Coincident", 3, 2, 0, 1))
sketch4.addConstraint(Sketcher.Constraint("Vertical", 0))
sketch4.addConstraint(Sketcher.Constraint("Horizontal", 1))
sketch4.addConstraint(Sketcher.Constraint("Vertical", 2))
sketch4.addConstraint(Sketcher.Constraint("Horizontal", 3))
sketch4.addConstraint(Sketcher.Constraint("Equal", 3, 0))
sketch4.addConstraint(Sketcher.Constraint("DistanceX", 1, 1, 1, 2, Q("94 mm")))
sketch4.addConstraint(Sketcher.Constraint("DistanceY", 0, 2, -1, 1, Q("66.578938 mm")))
sketch4.addConstraint(Sketcher.Constraint("DistanceX", 0, 2, -1, 1, Q("128.869043 mm")))
sketch4.setExpression("Constraints[9]", "Params.sketch4_width")
pad3 = doc.addObject("PartDesign::Pad", "Pad002")
body3.addObject(pad3)
pad3.Profile = sketch4
pad3.setExpression("Length", "Params.pad3_length")
body4 = doc.addObject("PartDesign::Body", "Body003")

sketch5 = doc.addObject("Sketcher::SketchObject", "Sketch004")
body4.addObject(sketch5)
sketch5.AttachmentSupport = (doc.getObject("XY_Plane003"), [""])
sketch5.MapMode = "FlatFace"
sketch5.addGeometry(Part.LineSegment(Vector(-129, 27, 0), Vector(-129, -67, 0)), False)
sketch5.addGeometry(Part.LineSegment(Vector(-129, -67, 0), Vector(-35, -67, 0)), False)
sketch5.addGeometry(Part.LineSegment(Vector(-35, -67, 0), Vector(-35, 27, 0)), False)
sketch5.addGeometry(Part.LineSegment(Vector(-35, 27, 0), Vector(-129, 27, 0)), False)
sketch5.addConstraint(Sketcher.Constraint("Coincident", 0, 2, 1, 1))
sketch5.addConstraint(Sketcher.Constraint("Coincident", 1, 2, 2, 1))
sketch5.addConstraint(Sketcher.Constraint("Coincident", 2, 2, 3, 1))
sketch5.addConstraint(Sketcher.Constraint("Coincident", 3, 2, 0, 1))
sketch5.addConstraint(Sketcher.Constraint("Vertical", 0))
sketch5.addConstraint(Sketcher.Constraint("Horizontal", 1))
sketch5.addConstraint(Sketcher.Constraint("Vertical", 2))
sketch5.addConstraint(Sketcher.Constraint("Horizontal", 3))
sketch5.addConstraint(Sketcher.Constraint("Equal", 3, 0))
sketch5.addConstraint(Sketcher.Constraint("DistanceX", 1, 1, 1, 2, Q("94 mm")))
sketch5.addConstraint(Sketcher.Constraint("DistanceY", 0, 2, -1, 1, Q("66.578938 mm")))
sketch5.addConstraint(Sketcher.Constraint("DistanceX", 0, 2, -1, 1, Q("128.869043 mm")))
sketch5.setExpression("Constraints[9]", "Params.sketch5_width")
pad4 = doc.addObject("PartDesign::Pad", "Pad003")
body4.addObject(pad4)
pad4.Profile = sketch5
pad4.setExpression("Length", "Params.pad4_length")

doc.recompute()
